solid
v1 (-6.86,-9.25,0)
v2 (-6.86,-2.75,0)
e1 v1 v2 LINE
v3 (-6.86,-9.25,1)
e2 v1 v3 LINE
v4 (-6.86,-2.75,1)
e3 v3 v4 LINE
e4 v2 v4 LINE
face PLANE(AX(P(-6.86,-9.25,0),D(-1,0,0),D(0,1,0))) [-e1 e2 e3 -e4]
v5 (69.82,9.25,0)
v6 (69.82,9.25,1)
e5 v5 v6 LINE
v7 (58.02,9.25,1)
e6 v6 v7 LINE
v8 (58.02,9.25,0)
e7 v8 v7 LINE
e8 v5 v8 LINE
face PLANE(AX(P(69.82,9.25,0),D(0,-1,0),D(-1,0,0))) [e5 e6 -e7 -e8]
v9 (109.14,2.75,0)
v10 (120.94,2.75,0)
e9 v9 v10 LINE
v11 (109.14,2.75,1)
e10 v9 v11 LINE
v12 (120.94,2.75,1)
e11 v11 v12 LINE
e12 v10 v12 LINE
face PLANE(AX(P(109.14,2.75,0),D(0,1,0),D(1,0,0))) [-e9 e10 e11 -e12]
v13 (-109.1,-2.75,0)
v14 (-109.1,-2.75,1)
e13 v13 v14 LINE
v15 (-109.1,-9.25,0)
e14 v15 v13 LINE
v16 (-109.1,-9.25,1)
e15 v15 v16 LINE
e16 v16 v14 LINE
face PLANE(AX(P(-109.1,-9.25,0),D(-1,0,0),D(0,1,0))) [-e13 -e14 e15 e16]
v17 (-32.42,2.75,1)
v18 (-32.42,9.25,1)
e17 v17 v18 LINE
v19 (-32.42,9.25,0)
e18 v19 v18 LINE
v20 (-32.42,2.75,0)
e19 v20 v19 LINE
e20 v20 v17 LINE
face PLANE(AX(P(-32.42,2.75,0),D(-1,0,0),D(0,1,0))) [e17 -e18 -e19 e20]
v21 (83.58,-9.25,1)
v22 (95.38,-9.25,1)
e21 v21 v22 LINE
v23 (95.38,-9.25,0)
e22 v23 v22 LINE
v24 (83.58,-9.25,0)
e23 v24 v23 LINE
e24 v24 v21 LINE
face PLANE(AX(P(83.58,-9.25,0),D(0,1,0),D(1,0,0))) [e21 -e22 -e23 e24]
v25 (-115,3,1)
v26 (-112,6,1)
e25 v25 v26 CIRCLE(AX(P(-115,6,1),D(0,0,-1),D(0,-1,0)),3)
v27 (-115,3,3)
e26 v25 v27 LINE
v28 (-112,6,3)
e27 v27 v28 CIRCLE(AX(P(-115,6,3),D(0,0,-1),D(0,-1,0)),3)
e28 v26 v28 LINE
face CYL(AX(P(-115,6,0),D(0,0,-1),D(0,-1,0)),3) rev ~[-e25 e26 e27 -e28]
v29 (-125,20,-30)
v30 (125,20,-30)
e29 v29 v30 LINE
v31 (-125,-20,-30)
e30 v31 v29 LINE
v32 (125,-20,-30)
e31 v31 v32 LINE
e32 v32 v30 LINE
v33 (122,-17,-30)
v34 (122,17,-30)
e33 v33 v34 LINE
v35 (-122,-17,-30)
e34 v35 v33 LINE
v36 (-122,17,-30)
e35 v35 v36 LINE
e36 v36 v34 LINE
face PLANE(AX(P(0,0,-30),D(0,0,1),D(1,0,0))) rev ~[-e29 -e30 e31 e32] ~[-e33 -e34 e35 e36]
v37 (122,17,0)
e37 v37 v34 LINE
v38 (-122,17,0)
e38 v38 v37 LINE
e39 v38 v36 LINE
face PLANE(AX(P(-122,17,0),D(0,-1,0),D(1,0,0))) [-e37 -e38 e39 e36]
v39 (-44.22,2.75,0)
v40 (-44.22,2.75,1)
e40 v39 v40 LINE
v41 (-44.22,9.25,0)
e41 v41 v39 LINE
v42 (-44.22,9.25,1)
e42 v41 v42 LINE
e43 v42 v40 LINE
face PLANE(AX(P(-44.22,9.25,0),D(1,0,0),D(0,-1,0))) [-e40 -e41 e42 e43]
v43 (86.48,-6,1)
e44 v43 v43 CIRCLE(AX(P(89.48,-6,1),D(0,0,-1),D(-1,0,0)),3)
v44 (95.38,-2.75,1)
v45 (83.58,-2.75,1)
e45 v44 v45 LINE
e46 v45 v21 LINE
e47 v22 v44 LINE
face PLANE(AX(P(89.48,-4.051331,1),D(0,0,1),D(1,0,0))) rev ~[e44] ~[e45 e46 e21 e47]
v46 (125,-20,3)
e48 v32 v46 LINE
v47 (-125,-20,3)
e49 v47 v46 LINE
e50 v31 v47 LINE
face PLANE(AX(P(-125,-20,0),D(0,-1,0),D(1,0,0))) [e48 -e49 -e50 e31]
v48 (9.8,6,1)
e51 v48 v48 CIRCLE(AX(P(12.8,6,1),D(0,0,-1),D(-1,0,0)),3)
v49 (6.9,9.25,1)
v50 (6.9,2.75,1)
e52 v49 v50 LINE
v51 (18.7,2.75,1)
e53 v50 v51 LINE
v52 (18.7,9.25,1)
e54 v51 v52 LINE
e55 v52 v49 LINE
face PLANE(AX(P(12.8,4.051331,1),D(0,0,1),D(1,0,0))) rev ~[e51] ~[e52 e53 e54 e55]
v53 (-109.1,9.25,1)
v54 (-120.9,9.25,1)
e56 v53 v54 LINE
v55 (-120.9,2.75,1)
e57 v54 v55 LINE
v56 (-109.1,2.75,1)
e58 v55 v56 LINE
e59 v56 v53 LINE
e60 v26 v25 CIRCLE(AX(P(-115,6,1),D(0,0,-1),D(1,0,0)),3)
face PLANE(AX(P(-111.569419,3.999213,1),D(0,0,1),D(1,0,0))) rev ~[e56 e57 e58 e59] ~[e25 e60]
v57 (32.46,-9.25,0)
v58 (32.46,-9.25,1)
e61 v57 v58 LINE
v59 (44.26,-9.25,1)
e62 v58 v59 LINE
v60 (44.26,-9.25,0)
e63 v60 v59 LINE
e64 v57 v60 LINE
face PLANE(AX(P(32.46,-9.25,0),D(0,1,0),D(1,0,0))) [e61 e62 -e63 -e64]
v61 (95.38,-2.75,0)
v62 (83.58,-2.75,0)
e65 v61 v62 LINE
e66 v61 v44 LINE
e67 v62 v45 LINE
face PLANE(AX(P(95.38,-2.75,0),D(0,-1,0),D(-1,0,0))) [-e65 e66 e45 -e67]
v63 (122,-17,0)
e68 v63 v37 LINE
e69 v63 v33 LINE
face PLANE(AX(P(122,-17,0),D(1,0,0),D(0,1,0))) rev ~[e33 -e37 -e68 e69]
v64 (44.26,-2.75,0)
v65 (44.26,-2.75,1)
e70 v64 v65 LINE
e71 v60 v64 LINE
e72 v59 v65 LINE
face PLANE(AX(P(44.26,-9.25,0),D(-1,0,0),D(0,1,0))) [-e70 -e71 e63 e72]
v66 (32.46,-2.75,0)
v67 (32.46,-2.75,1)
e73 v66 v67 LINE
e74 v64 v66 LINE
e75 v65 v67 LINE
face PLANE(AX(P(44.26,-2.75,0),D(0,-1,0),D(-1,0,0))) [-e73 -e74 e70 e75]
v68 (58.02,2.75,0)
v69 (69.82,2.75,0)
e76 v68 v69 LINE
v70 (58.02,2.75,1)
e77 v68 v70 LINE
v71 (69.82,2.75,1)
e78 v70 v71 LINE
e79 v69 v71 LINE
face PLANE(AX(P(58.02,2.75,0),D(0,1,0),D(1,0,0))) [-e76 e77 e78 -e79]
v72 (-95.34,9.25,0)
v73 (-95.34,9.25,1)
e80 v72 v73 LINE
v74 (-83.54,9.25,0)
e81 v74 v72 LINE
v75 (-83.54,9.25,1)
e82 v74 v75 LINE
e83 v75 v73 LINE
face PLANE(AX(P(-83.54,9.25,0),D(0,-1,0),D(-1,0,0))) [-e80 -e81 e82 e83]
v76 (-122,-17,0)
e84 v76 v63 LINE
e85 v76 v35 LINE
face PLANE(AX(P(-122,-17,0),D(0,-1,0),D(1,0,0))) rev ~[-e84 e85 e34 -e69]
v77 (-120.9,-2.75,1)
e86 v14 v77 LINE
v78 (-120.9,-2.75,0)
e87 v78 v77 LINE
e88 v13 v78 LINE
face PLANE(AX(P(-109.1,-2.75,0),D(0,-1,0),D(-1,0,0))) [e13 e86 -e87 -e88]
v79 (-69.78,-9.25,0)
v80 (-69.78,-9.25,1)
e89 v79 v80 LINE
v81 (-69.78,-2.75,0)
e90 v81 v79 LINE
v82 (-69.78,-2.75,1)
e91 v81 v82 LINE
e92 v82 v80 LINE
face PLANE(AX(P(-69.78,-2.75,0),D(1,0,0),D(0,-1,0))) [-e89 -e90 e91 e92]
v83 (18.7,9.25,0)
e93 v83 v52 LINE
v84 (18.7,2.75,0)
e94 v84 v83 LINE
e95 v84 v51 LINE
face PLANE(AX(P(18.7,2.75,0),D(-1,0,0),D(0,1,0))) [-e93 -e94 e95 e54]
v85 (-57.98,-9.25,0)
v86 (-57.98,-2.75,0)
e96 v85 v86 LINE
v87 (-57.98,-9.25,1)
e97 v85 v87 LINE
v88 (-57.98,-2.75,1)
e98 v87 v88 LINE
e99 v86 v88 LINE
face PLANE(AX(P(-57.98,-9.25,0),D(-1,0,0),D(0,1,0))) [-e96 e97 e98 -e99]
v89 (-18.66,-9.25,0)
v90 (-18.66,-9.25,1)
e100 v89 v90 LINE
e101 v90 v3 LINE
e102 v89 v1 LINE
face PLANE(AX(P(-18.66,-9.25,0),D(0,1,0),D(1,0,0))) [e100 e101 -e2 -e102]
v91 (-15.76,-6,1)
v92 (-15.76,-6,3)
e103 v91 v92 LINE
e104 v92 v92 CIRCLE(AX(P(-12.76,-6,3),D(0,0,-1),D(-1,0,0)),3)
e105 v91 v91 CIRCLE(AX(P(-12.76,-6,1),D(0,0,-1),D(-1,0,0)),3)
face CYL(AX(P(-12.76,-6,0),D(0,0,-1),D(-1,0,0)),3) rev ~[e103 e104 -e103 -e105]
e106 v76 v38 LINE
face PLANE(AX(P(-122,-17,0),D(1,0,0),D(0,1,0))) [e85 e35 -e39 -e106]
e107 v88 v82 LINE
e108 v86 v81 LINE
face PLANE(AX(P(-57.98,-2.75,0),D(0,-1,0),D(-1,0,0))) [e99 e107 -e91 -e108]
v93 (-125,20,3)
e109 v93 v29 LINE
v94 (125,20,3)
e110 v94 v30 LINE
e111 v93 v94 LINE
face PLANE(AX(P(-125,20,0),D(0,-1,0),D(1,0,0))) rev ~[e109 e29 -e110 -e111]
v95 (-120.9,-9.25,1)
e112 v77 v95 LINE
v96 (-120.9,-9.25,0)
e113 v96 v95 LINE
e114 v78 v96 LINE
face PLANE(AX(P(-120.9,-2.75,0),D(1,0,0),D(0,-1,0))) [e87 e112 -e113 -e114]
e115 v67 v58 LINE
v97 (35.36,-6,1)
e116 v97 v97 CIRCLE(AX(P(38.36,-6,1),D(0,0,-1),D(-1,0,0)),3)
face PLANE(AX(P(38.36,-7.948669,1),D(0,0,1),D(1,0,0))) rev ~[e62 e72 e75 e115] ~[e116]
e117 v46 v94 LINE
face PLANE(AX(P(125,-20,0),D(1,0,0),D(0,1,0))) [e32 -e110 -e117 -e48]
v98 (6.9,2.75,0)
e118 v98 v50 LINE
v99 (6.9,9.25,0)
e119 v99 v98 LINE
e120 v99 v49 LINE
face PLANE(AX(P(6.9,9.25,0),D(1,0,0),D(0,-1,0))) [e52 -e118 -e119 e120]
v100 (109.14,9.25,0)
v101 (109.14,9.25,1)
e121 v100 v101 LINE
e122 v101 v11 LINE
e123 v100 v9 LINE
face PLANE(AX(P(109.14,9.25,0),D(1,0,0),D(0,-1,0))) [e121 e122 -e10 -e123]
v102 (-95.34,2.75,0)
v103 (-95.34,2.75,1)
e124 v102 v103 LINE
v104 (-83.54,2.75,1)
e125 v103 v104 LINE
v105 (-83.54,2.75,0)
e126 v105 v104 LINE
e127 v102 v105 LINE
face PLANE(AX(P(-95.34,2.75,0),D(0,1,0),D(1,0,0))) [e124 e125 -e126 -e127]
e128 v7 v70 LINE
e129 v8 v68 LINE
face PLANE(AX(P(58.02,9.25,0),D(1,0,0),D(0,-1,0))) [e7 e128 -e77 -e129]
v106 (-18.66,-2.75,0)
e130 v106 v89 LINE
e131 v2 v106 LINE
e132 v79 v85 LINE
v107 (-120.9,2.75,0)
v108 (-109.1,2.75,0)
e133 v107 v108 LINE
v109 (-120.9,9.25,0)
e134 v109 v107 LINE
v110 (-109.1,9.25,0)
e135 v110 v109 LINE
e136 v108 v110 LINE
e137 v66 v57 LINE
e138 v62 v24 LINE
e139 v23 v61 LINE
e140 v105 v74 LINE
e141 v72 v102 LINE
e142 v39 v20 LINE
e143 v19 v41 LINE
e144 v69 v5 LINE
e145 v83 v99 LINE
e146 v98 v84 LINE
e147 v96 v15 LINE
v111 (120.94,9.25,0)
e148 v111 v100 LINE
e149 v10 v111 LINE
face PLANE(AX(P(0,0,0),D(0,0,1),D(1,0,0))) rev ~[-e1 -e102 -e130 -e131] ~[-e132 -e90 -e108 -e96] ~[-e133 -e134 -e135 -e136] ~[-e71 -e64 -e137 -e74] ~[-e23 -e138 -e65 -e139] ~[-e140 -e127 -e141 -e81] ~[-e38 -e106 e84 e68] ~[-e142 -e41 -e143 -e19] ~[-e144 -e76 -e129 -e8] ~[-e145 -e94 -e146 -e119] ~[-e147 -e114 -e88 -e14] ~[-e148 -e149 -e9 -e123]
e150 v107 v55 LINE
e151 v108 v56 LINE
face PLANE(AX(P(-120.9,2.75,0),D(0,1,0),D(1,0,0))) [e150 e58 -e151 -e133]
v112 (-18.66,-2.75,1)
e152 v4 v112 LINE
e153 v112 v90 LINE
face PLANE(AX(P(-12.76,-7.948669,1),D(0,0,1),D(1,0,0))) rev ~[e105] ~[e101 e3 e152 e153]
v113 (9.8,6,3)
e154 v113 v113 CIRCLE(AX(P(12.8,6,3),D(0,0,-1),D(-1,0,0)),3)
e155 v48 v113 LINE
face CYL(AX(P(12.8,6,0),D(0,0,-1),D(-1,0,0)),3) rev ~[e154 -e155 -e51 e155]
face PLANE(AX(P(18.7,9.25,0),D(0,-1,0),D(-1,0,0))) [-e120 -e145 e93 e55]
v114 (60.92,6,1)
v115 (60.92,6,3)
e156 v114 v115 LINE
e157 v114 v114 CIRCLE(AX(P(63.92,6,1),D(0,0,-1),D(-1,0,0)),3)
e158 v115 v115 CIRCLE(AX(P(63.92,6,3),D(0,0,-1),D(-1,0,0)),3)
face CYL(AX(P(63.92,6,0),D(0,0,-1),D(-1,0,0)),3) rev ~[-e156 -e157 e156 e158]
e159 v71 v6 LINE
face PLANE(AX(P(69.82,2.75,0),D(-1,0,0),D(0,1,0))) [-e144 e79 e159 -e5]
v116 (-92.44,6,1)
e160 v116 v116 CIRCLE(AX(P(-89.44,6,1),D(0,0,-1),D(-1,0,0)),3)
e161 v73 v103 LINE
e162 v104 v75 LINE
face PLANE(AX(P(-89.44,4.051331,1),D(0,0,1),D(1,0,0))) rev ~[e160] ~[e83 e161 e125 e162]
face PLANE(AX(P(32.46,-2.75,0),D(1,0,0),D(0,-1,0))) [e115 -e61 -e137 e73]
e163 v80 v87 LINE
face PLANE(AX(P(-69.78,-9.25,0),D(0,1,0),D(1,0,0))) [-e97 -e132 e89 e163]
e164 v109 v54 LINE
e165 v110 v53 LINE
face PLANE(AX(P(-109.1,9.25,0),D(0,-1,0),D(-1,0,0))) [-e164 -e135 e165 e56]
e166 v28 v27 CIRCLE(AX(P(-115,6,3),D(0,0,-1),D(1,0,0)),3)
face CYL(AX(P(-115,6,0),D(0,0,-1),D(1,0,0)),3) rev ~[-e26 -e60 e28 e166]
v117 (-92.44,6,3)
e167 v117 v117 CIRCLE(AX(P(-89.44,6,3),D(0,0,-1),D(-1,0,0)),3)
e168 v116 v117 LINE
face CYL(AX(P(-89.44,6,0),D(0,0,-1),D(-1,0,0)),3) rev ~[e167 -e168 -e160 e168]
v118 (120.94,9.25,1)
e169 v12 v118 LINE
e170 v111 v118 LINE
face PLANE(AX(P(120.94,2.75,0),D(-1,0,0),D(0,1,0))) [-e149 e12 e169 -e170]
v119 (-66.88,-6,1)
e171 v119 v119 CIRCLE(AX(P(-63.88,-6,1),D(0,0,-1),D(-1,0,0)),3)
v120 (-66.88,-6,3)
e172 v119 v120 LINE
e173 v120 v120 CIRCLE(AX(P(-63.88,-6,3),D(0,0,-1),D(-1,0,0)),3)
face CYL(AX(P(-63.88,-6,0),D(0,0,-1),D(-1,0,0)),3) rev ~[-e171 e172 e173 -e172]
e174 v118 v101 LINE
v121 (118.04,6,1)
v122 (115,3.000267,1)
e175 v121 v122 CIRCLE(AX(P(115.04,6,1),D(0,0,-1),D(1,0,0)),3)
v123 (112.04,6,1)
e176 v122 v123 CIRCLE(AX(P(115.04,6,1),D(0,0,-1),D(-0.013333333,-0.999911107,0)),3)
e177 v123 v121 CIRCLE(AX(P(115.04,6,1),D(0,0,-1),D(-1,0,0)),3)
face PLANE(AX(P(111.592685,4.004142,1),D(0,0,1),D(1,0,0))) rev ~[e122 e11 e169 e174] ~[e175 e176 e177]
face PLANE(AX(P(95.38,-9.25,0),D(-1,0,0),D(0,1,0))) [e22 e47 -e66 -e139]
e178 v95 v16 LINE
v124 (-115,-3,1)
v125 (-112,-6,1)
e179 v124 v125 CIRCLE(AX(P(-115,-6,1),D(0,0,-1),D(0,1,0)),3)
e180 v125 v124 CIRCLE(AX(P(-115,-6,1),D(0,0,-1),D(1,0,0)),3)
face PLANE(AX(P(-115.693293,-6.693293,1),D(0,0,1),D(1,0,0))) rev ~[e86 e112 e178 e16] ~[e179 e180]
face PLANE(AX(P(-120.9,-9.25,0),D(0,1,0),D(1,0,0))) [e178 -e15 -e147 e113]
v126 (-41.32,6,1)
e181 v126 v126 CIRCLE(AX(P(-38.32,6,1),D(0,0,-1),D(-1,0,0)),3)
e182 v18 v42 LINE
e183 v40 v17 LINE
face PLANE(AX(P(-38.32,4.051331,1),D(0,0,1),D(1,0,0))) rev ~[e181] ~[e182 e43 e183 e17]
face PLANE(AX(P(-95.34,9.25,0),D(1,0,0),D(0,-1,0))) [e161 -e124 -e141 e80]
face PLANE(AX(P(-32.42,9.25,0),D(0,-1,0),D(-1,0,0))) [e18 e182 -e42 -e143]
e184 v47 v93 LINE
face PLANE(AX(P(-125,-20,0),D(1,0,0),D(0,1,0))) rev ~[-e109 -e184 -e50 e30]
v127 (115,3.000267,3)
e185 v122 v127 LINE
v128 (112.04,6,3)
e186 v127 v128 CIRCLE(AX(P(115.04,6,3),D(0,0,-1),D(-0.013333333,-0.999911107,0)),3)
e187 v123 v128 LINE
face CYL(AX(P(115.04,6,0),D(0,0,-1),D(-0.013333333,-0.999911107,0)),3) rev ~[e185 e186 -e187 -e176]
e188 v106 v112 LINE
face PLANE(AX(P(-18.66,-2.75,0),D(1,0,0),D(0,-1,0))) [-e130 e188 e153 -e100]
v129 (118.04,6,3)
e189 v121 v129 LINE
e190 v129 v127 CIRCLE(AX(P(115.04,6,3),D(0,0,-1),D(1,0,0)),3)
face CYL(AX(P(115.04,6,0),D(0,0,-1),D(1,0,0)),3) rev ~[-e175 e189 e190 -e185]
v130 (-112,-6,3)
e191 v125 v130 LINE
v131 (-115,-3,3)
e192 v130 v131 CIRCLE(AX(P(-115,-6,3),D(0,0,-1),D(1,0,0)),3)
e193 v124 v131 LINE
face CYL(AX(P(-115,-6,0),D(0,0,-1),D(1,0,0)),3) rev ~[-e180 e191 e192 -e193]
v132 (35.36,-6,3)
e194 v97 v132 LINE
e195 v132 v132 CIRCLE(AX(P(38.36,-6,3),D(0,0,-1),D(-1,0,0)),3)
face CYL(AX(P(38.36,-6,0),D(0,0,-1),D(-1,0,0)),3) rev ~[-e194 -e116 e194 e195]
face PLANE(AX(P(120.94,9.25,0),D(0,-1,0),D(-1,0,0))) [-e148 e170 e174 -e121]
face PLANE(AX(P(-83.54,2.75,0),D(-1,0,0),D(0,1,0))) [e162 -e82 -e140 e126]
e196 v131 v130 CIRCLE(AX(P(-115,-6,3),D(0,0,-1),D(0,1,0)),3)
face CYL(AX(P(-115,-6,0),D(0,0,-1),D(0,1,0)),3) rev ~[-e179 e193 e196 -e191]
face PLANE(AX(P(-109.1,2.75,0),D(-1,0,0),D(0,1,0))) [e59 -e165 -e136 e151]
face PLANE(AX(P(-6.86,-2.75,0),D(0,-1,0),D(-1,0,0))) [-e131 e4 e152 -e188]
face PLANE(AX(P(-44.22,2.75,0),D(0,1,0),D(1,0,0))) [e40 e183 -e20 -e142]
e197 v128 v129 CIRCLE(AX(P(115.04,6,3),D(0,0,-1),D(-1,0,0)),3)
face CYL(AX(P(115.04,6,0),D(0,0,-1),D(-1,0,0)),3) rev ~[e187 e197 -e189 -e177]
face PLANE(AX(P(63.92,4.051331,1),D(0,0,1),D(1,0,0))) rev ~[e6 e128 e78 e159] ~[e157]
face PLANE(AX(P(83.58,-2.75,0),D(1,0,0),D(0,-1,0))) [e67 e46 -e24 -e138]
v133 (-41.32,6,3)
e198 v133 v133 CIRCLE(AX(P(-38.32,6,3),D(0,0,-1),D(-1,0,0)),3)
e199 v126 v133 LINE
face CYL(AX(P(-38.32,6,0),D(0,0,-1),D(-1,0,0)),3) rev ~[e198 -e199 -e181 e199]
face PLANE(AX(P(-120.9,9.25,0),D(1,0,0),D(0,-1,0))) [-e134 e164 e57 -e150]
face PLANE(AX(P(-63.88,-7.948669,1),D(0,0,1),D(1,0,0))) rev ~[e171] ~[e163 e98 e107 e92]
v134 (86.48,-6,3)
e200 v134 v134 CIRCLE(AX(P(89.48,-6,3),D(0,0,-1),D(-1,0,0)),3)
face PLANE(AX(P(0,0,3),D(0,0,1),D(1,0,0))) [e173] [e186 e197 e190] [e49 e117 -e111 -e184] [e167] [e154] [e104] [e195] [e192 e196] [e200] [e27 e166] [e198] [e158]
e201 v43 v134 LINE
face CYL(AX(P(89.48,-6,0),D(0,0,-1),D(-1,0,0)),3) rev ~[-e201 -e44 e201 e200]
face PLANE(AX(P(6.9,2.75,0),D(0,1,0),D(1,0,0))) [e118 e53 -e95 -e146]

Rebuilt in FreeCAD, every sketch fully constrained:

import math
import FreeCAD as App
import Part
import Sketcher

V = App.Vector
Q = App.Units.Quantity

doc = App.newDocument("Part")
body = doc.addObject("PartDesign::Body", "Body")

# Sketch on XY plane
sketch1 = body.newObject("Sketcher::SketchObject", "Sketch")
sketch1.AttachmentSupport = (doc.getObject("XY_Plane"), [""])
sketch1.MapMode = "FlatFace"
sketch1.addGeometry(Part.LineSegment(V(-125, 20, 0), V(-125, -20, 0)), False)
sketch1.addGeometry(Part.LineSegment(V(-125, -20, 0), V(125, -20, 0)), False)
sketch1.addGeometry(Part.LineSegment(V(125, -20, 0), V(125, 20, 0)), False)
sketch1.addGeometry(Part.LineSegment(V(125, 20, 0), V(-125, 20, 0)), False)
sketch1.addGeometry(Part.ArcOfCircle(Part.Circle(V(-115, 6, 0), V(0, 0, 1), 3), math.radians(0), math.radians(270)), False)
sketch1.addGeometry(Part.ArcOfCircle(Part.Circle(V(-115, 6, 0), V(0, 0, 1), 3), math.radians(-90), math.radians(0)), False)
sketch1.addGeometry(Part.ArcOfCircle(Part.Circle(V(-115, -6, 0), V(0, 0, 1), 3), math.radians(90), math.radians(360)), False)
sketch1.addGeometry(Part.ArcOfCircle(Part.Circle(V(-115, -6, 0), V(0, 0, 1), 3), math.radians(0), math.radians(90)), False)
sketch1.addGeometry(Part.Circle(V(-63.9, -6, 0), V(0, 0, 1), 3), False)
sketch1.addGeometry(Part.Circle(V(-12.8, -6, 0), V(0, 0, 1), 3), False)
sketch1.addGeometry(Part.Circle(V(38.4, -6, 0), V(0, 0, 1), 3), False)
sketch1.addGeometry(Part.Circle(V(89.5, -6, 0), V(0, 0, 1), 3), False)
sketch1.addGeometry(Part.ArcOfCircle(Part.Circle(V(115, 6, 0), V(0, 0, 1), 3), math.radians(0), math.radians(180)), False)
sketch1.addGeometry(Part.ArcOfCircle(Part.Circle(V(115, 6, 0), V(0, 0, 1), 3), math.radians(-91), math.radians(0)), False)
sketch1.addGeometry(Part.ArcOfCircle(Part.Circle(V(115, 6, 0), V(0, 0, 1), 3), math.radians(180), math.radians(269)), False)
sketch1.addGeometry(Part.Circle(V(63.9, 6, 0), V(0, 0, 1), 3), False)
sketch1.addGeometry(Part.Circle(V(12.8, 6, 0), V(0, 0, 1), 3), False)
sketch1.addGeometry(Part.Circle(V(-38.3, 6, 0), V(0, 0, 1), 3), False)
sketch1.addGeometry(Part.Circle(V(-89.4, 6, 0), V(0, 0, 1), 3), False)
sketch1.addConstraint(Sketcher.Constraint("Coincident", 0, 2, 1, 1))
sketch1.addConstraint(Sketcher.Constraint("Coincident", 1, 2, 2, 1))
sketch1.addConstraint(Sketcher.Constraint("Coincident", 2, 2, 3, 1))
sketch1.addConstraint(Sketcher.Constraint("Coincident", 3, 2, 0, 1))
sketch1.addConstraint(Sketcher.Constraint("Tangent", 4, 1, 5, 2))
sketch1.addConstraint(Sketcher.Constraint("Coincident", 5, 1, 4, 2))
sketch1.addConstraint(Sketcher.Constraint("Tangent", 6, 1, 7, 2))
sketch1.addConstraint(Sketcher.Constraint("Coincident", 7, 1, 6, 2))
sketch1.addConstraint(Sketcher.Constraint("Tangent", 12, 1, 13, 2))
sketch1.addConstraint(Sketcher.Constraint("Tangent", 13, 1, 14, 2))
sketch1.addConstraint(Sketcher.Constraint("Tangent", 14, 1, 12, 2))
sketch1.addConstraint(Sketcher.Constraint("Vertical", 0))
sketch1.addConstraint(Sketcher.Constraint("Horizontal", 1))
sketch1.addConstraint(Sketcher.Constraint("Vertical", 2))
sketch1.addConstraint(Sketcher.Constraint("Horizontal", 3))
sketch1.addConstraint(Sketcher.Constraint("Equal", 5, 6))
sketch1.addConstraint(Sketcher.Constraint("Equal", 7, 8))
sketch1.addConstraint(Sketcher.Constraint("Equal", 8, 9))
sketch1.addConstraint(Sketcher.Constraint("Equal", 9, 10))
sketch1.addConstraint(Sketcher.Constraint("Equal", 10, 11))
sketch1.addConstraint(Sketcher.Constraint("Equal", 11, 12))
sketch1.addConstraint(Sketcher.Constraint("Equal", 14, 15))
sketch1.addConstraint(Sketcher.Constraint("Equal", 15, 16))
sketch1.addConstraint(Sketcher.Constraint("Equal", 16, 17))
sketch1.addConstraint(Sketcher.Constraint("Equal", 17, 18))
sketch1.addConstraint(Sketcher.Constraint("Symmetric", 0, 2, 2, 2, -1, 1))
sketch1.addConstraint(Sketcher.Constraint("Symmetric", 4, 3, 6, 3, -1))
sketch1.addConstraint(Sketcher.Constraint("Horizontal", 7, 3, 8, 3))
sketch1.addConstraint(Sketcher.Constraint("Horizontal", 8, 3, 9, 3))
sketch1.addConstraint(Sketcher.Constraint("Horizontal", 9, 3, 10, 3))
sketch1.addConstraint(Sketcher.Constraint("Horizontal", 10, 3, 11, 3))
sketch1.addConstraint(Sketcher.Constraint("Horizontal", 5, 3, 12, 3))
sketch1.addConstraint(Sketcher.Constraint("Horizontal", 14, 3, 15, 3))
sketch1.addConstraint(Sketcher.Constraint("Horizontal", 15, 3, 16, 3))
sketch1.addConstraint(Sketcher.Constraint("Horizontal", 16, 3, 17, 3))
sketch1.addConstraint(Sketcher.Constraint("Horizontal", 17, 3, 18, 3))
sketch1.addConstraint(Sketcher.Constraint("Horizontal", 18, 3, 4, 1))
sketch1.addConstraint(Sketcher.Constraint("Horizontal", 11, 3, 7, 1))
sketch1.addConstraint(Sketcher.Constraint("Horizontal", 4, 1, 12, 1))
sketch1.addConstraint(Sketcher.Constraint("Horizontal", 12, 1, 14, 1))
sketch1.addConstraint(Sketcher.Constraint("Vertical", 7, 3, 5, 1))
sketch1.addConstraint(Sketcher.Constraint("Vertical", 5, 1, 6, 1))
sketch1.addConstraint(Sketcher.Constraint("Diameter", 8, Q("6 mm")))
sketch1.addConstraint(Sketcher.Constraint("DistanceX", 1, 1, 1, 2, Q("250 mm")))
sketch1.addConstraint(Sketcher.Constraint("DistanceY", 0, 2, 0, 1, Q("40 mm")))
sketch1.addConstraint(Sketcher.Constraint("DistanceX", 4, 3, -1, 1, Q("115 mm")))
sketch1.addConstraint(Sketcher.Constraint("DistanceY", -1, 1, 4, 3, Q("6 mm")))
sketch1.addConstraint(Sketcher.Constraint("DistanceX", -1, 1, 13, 1, Q("115 mm")))
sketch1.addConstraint(Sketcher.Constraint("DistanceX", -1, 1, 16, 3, Q("12.8 mm")))
sketch1.addConstraint(Sketcher.Constraint("DistanceX", 9, 3, 12, 3, Q("127.8 mm")))
sketch1.addConstraint(Sketcher.Constraint("DistanceX", 8, 3, -1, 1, Q("63.88 mm")))
sketch1.addConstraint(Sketcher.Constraint("DistanceX", 9, 3, -1, 1, Q("12.76 mm")))
sketch1.addConstraint(Sketcher.Constraint("DistanceX", -1, 1, 10, 3, Q("38.36 mm")))
sketch1.addConstraint(Sketcher.Constraint("DistanceX", -1, 1, 11, 3, Q("89.48 mm")))
sketch1.addConstraint(Sketcher.Constraint("DistanceX", -1, 1, 15, 3, Q("63.92 mm")))
sketch1.addConstraint(Sketcher.Constraint("DistanceX", 17, 3, -1, 1, Q("38.32 mm")))
sketch1.addConstraint(Sketcher.Constraint("DistanceX", 18, 3, -1, 1, Q("89.44 mm")))
pad1 = body.newObject("PartDesign::Pad", "Pad")
pad1.Profile = sketch1
pad1.Length = 3

# Sketch on XY plane
sketch2 = body.newObject("Sketcher::SketchObject", "Sketch001")
sketch2.AttachmentSupport = (doc.getObject("XY_Plane"), [""])
sketch2.MapMode = "FlatFace"
sketch2.addGeometry(Part.LineSegment(V(58, 2.8, 0), V(69.8, 2.8, 0)), False)
sketch2.addGeometry(Part.LineSegment(V(69.8, 2.8, 0), V(69.8, 9.2, 0)), False)
sketch2.addGeometry(Part.LineSegment(V(69.8, 9.2, 0), V(58, 9.2, 0)), False)
sketch2.addGeometry(Part.LineSegment(V(58, 9.2, 0), V(58, 2.8, 0)), False)
sketch2.addGeometry(Part.Circle(V(63.9, 6, 0), V(0, 0, 1), 3), False)
sketch2.addGeometry(Part.LineSegment(V(32.5, -9.2, 0), V(44.3, -9.2, 0)), False)
sketch2.addGeometry(Part.LineSegment(V(44.3, -9.2, 0), V(44.3, -2.8, 0)), False)
sketch2.addGeometry(Part.LineSegment(V(44.3, -2.8, 0), V(32.5, -2.8, 0)), False)
sketch2.addGeometry(Part.LineSegment(V(32.5, -2.8, 0), V(32.5, -9.2, 0)), False)
sketch2.addGeometry(Part.Circle(V(38.4, -6, 0), V(0, 0, 1), 3), False)
sketch2.addGeometry(Part.LineSegment(V(6.9, 2.8, 0), V(18.7, 2.8, 0)), False)
sketch2.addGeometry(Part.LineSegment(V(18.7, 2.8, 0), V(18.7, 9.2, 0)), False)
sketch2.addGeometry(Part.LineSegment(V(18.7, 9.2, 0), V(6.9, 9.2, 0)), False)
sketch2.addGeometry(Part.LineSegment(V(6.9, 9.2, 0), V(6.9, 2.8, 0)), False)
sketch2.addGeometry(Part.Circle(V(12.8, 6, 0), V(0, 0, 1), 3), False)
sketch2.addGeometry(Part.LineSegment(V(-18.7, -9.2, 0), V(-6.9, -9.2, 0)), False)
sketch2.addGeometry(Part.LineSegment(V(-6.9, -9.2, 0), V(-6.9, -2.8, 0)), False)
sketch2.addGeometry(Part.LineSegment(V(-6.9, -2.8, 0), V(-18.7, -2.8, 0)), False)
sketch2.addGeometry(Part.LineSegment(V(-18.7, -2.8, 0), V(-18.7, -9.2, 0)), False)
sketch2.addGeometry(Part.Circle(V(-12.8, -6, 0), V(0, 0, 1), 3), False)
sketch2.addGeometry(Part.LineSegment(V(83.6, -2.8, 0), V(83.6, -9.2, 0)), False)
sketch2.addGeometry(Part.LineSegment(V(83.6, -9.2, 0), V(95.4, -9.2, 0)), False)
sketch2.addGeometry(Part.LineSegment(V(95.4, -9.2, 0), V(95.4, -2.8, 0)), False)
sketch2.addGeometry(Part.LineSegment(V(95.4, -2.8, 0), V(83.6, -2.8, 0)), False)
sketch2.addGeometry(Part.Circle(V(89.5, -6, 0), V(0, 0, 1), 3), False)
sketch2.addGeometry(Part.LineSegment(V(109.1, 2.8, 0), V(120.9, 2.8, 0)), False)
sketch2.addGeometry(Part.LineSegment(V(120.9, 2.8, 0), V(120.9, 9.2, 0)), False)
sketch2.addGeometry(Part.LineSegment(V(120.9, 9.2, 0), V(109.1, 9.2, 0)), False)
sketch2.addGeometry(Part.LineSegment(V(109.1, 9.2, 0), V(109.1, 2.8, 0)), False)
sketch2.addGeometry(Part.ArcOfCircle(Part.Circle(V(115, 6, 0), V(0, 0, 1), 3), math.radians(180), math.radians(269)), False)
sketch2.addGeometry(Part.ArcOfCircle(Part.Circle(V(115, 6, 0), V(0, 0, 1), 3), math.radians(0), math.radians(180)), False)
sketch2.addGeometry(Part.ArcOfCircle(Part.Circle(V(115, 6, 0), V(0, 0, 1), 3), math.radians(-91), math.radians(0)), False)
sketch2.addGeometry(Part.LineSegment(V(-44.2, 2.8, 0), V(-32.4, 2.8, 0)), False)
sketch2.addGeometry(Part.LineSegment(V(-32.4, 2.8, 0), V(-32.4, 9.2, 0)), False)
sketch2.addGeometry(Part.LineSegment(V(-32.4, 9.2, 0), V(-44.2, 9.2, 0)), False)
sketch2.addGeometry(Part.LineSegment(V(-44.2, 9.2, 0), V(-44.2, 2.8, 0)), False)
sketch2.addGeometry(Part.Circle(V(-38.3, 6, 0), V(0, 0, 1), 3), False)
sketch2.addGeometry(Part.LineSegment(V(-69.8, -9.2, 0), V(-58, -9.2, 0)), False)
sketch2.addGeometry(Part.LineSegment(V(-58, -9.2, 0), V(-58, -2.8, 0)), False)
sketch2.addGeometry(Part.LineSegment(V(-58, -2.8, 0), V(-69.8, -2.8, 0)), False)
sketch2.addGeometry(Part.LineSegment(V(-69.8, -2.8, 0), V(-69.8, -9.2, 0)), False)
sketch2.addGeometry(Part.Circle(V(-63.9, -6, 0), V(0, 0, 1), 3), False)
sketch2.addGeometry(Part.LineSegment(V(-95.3, 2.8, 0), V(-83.5, 2.8, 0)), False)
sketch2.addGeometry(Part.LineSegment(V(-83.5, 2.8, 0), V(-83.5, 9.2, 0)), False)
sketch2.addGeometry(Part.LineSegment(V(-83.5, 9.2, 0), V(-95.3, 9.2, 0)), False)
sketch2.addGeometry(Part.LineSegment(V(-95.3, 9.2, 0), V(-95.3, 2.8, 0)), False)
sketch2.addGeometry(Part.Circle(V(-89.4, 6, 0), V(0, 0, 1), 3), False)
sketch2.addGeometry(Part.LineSegment(V(-109.1, 2.8, 0), V(-109.1, 9.2, 0)), False)
sketch2.addGeometry(Part.LineSegment(V(-109.1, 9.2, 0), V(-120.9, 9.2, 0)), False)
sketch2.addGeometry(Part.LineSegment(V(-120.9, 9.2, 0), V(-120.9, 2.8, 0)), False)
sketch2.addGeometry(Part.LineSegment(V(-120.9, 2.8, 0), V(-109.1, 2.8, 0)), False)
sketch2.addGeometry(Part.ArcOfCircle(Part.Circle(V(-115, 6, 0), V(0, 0, 1), 3), math.radians(-90), math.radians(0)), False)
sketch2.addGeometry(Part.ArcOfCircle(Part.Circle(V(-115, 6, 0), V(0, 0, 1), 3), math.radians(0), math.radians(270)), False)
sketch2.addGeometry(Part.LineSegment(V(-120.9, -2.8, 0), V(-120.9, -9.2, 0)), False)
sketch2.addGeometry(Part.LineSegment(V(-120.9, -9.2, 0), V(-109.1, -9.2, 0)), False)
sketch2.addGeometry(Part.LineSegment(V(-109.1, -9.2, 0), V(-109.1, -2.8, 0)), False)
sketch2.addGeometry(Part.LineSegment(V(-109.1, -2.8, 0), V(-120.9, -2.8, 0)), False)
sketch2.addGeometry(Part.ArcOfCircle(Part.Circle(V(-115, -6, 0), V(0, 0, 1), 3), math.radians(90), math.radians(360)), False)
sketch2.addGeometry(Part.ArcOfCircle(Part.Circle(V(-115, -6, 0), V(0, 0, 1), 3), math.radians(0), math.radians(90)), False)
sketch2.addConstraint(Sketcher.Constraint("Coincident", 0, 2, 1, 1))
sketch2.addConstraint(Sketcher.Constraint("Coincident", 1, 2, 2, 1))
sketch2.addConstraint(Sketcher.Constraint("Coincident", 2, 2, 3, 1))
sketch2.addConstraint(Sketcher.Constraint("Coincident", 3, 2, 0, 1))
sketch2.addConstraint(Sketcher.Constraint("Coincident", 5, 2, 6, 1))
sketch2.addConstraint(Sketcher.Constraint("Coincident", 6, 2, 7, 1))
sketch2.addConstraint(Sketcher.Constraint("Coincident", 7, 2, 8, 1))
sketch2.addConstraint(Sketcher.Constraint("Coincident", 8, 2, 5, 1))
sketch2.addConstraint(Sketcher.Constraint("Coincident", 10, 2, 11, 1))
sketch2.addConstraint(Sketcher.Constraint("Coincident", 11, 2, 12, 1))
sketch2.addConstraint(Sketcher.Constraint("Coincident", 12, 2, 13, 1))
sketch2.addConstraint(Sketcher.Constraint("Coincident", 13, 2, 10, 1))
sketch2.addConstraint(Sketcher.Constraint("Coincident", 15, 2, 16, 1))
sketch2.addConstraint(Sketcher.Constraint("Coincident", 16, 2, 17, 1))
sketch2.addConstraint(Sketcher.Constraint("Coincident", 17, 2, 18, 1))
sketch2.addConstraint(Sketcher.Constraint("Coincident", 18, 2, 15, 1))
sketch2.addConstraint(Sketcher.Constraint("Coincident", 20, 2, 21, 1))
sketch2.addConstraint(Sketcher.Constraint("Coincident", 21, 2, 22, 1))
sketch2.addConstraint(Sketcher.Constraint("Coincident", 22, 2, 23, 1))
sketch2.addConstraint(Sketcher.Constraint("Coincident", 23, 2, 20, 1))
sketch2.addConstraint(Sketcher.Constraint("Coincident", 25, 2, 26, 1))
sketch2.addConstraint(Sketcher.Constraint("Coincident", 26, 2, 27, 1))
sketch2.addConstraint(Sketcher.Constraint("Coincident", 27, 2, 28, 1))
sketch2.addConstraint(Sketcher.Constraint("Coincident", 28, 2, 25, 1))
sketch2.addConstraint(Sketcher.Constraint("Tangent", 29, 1, 30, 2))
sketch2.addConstraint(Sketcher.Constraint("Tangent", 30, 1, 31, 2))
sketch2.addConstraint(Sketcher.Constraint("Tangent", 31, 1, 29, 2))
sketch2.addConstraint(Sketcher.Constraint("Coincident", 32, 2, 33, 1))
sketch2.addConstraint(Sketcher.Constraint("Coincident", 33, 2, 34, 1))
sketch2.addConstraint(Sketcher.Constraint("Coincident", 34, 2, 35, 1))
sketch2.addConstraint(Sketcher.Constraint("Coincident", 35, 2, 32, 1))
sketch2.addConstraint(Sketcher.Constraint("Coincident", 37, 2, 38, 1))
sketch2.addConstraint(Sketcher.Constraint("Coincident", 38, 2, 39, 1))
sketch2.addConstraint(Sketcher.Constraint("Coincident", 39, 2, 40, 1))
sketch2.addConstraint(Sketcher.Constraint("Coincident", 40, 2, 37, 1))
sketch2.addConstraint(Sketcher.Constraint("Coincident", 42, 2, 43, 1))
sketch2.addConstraint(Sketcher.Constraint("Coincident", 43, 2, 44, 1))
sketch2.addConstraint(Sketcher.Constraint("Coincident", 44, 2, 45, 1))
sketch2.addConstraint(Sketcher.Constraint("Coincident", 45, 2, 42, 1))
sketch2.addConstraint(Sketcher.Constraint("Coincident", 47, 2, 48, 1))
sketch2.addConstraint(Sketcher.Constraint("Coincident", 48, 2, 49, 1))
sketch2.addConstraint(Sketcher.Constraint("Coincident", 49, 2, 50, 1))
sketch2.addConstraint(Sketcher.Constraint("Coincident", 50, 2, 47, 1))
sketch2.addConstraint(Sketcher.Constraint("Tangent", 51, 1, 52, 2))
sketch2.addConstraint(Sketcher.Constraint("Coincident", 52, 1, 51, 2))
sketch2.addConstraint(Sketcher.Constraint("Coincident", 53, 2, 54, 1))
sketch2.addConstraint(Sketcher.Constraint("Coincident", 54, 2, 55, 1))
sketch2.addConstraint(Sketcher.Constraint("Coincident", 55, 2, 56, 1))
sketch2.addConstraint(Sketcher.Constraint("Coincident", 56, 2, 53, 1))
sketch2.addConstraint(Sketcher.Constraint("Tangent", 57, 1, 58, 2))
sketch2.addConstraint(Sketcher.Constraint("Coincident", 58, 1, 57, 2))
sketch2.addConstraint(Sketcher.Constraint("Horizontal", 0))
sketch2.addConstraint(Sketcher.Constraint("Vertical", 1))
sketch2.addConstraint(Sketcher.Constraint("Horizontal", 2))
sketch2.addConstraint(Sketcher.Constraint("Vertical", 3))
sketch2.addConstraint(Sketcher.Constraint("Horizontal", 5))
sketch2.addConstraint(Sketcher.Constraint("Vertical", 6))
sketch2.addConstraint(Sketcher.Constraint("Horizontal", 7))
sketch2.addConstraint(Sketcher.Constraint("Vertical", 8))
sketch2.addConstraint(Sketcher.Constraint("Horizontal", 10))
sketch2.addConstraint(Sketcher.Constraint("Vertical", 11))
sketch2.addConstraint(Sketcher.Constraint("Horizontal", 12))
sketch2.addConstraint(Sketcher.Constraint("Vertical", 13))
sketch2.addConstraint(Sketcher.Constraint("Horizontal", 15))
sketch2.addConstraint(Sketcher.Constraint("Vertical", 16))
sketch2.addConstraint(Sketcher.Constraint("Horizontal", 17))
sketch2.addConstraint(Sketcher.Constraint("Vertical", 18))
sketch2.addConstraint(Sketcher.Constraint("Vertical", 20))
sketch2.addConstraint(Sketcher.Constraint("Horizontal", 21))
sketch2.addConstraint(Sketcher.Constraint("Vertical", 22))
sketch2.addConstraint(Sketcher.Constraint("Horizontal", 23))
sketch2.addConstraint(Sketcher.Constraint("Horizontal", 25))
sketch2.addConstraint(Sketcher.Constraint("Vertical", 26))
sketch2.addConstraint(Sketcher.Constraint("Horizontal", 27))
sketch2.addConstraint(Sketcher.Constraint("Vertical", 28))
sketch2.addConstraint(Sketcher.Constraint("Horizontal", 32))
sketch2.addConstraint(Sketcher.Constraint("Vertical", 33))
sketch2.addConstraint(Sketcher.Constraint("Horizontal", 34))
sketch2.addConstraint(Sketcher.Constraint("Vertical", 35))
sketch2.addConstraint(Sketcher.Constraint("Horizontal", 37))
sketch2.addConstraint(Sketcher.Constraint("Vertical", 38))
sketch2.addConstraint(Sketcher.Constraint("Horizontal", 39))
sketch2.addConstraint(Sketcher.Constraint("Vertical", 40))
sketch2.addConstraint(Sketcher.Constraint("Horizontal", 42))
sketch2.addConstraint(Sketcher.Constraint("Vertical", 43))
sketch2.addConstraint(Sketcher.Constraint("Horizontal", 44))
sketch2.addConstraint(Sketcher.Constraint("Vertical", 45))
sketch2.addConstraint(Sketcher.Constraint("Vertical", 47))
sketch2.addConstraint(Sketcher.Constraint("Horizontal", 48))
sketch2.addConstraint(Sketcher.Constraint("Vertical", 49))
sketch2.addConstraint(Sketcher.Constraint("Horizontal", 50))
sketch2.addConstraint(Sketcher.Constraint("Vertical", 53))
sketch2.addConstraint(Sketcher.Constraint("Horizontal", 54))
sketch2.addConstraint(Sketcher.Constraint("Vertical", 55))
sketch2.addConstraint(Sketcher.Constraint("Horizontal", 56))
sketch2.addConstraint(Sketcher.Constraint("Equal", 4, 9))
sketch2.addConstraint(Sketcher.Constraint("Equal", 9, 14))
sketch2.addConstraint(Sketcher.Constraint("Equal", 14, 19))
sketch2.addConstraint(Sketcher.Constraint("Equal", 19, 24))
sketch2.addConstraint(Sketcher.Constraint("Equal", 24, 29))
sketch2.addConstraint(Sketcher.Constraint("Equal", 31, 36))
sketch2.addConstraint(Sketcher.Constraint("Equal", 36, 41))
sketch2.addConstraint(Sketcher.Constraint("Equal", 41, 46))
sketch2.addConstraint(Sketcher.Constraint("Equal", 46, 51))
sketch2.addConstraint(Sketcher.Constraint("Equal", 52, 57))
sketch2.addConstraint(Sketcher.Constraint("Symmetric", 51, 3, 57, 3, -1))
sketch2.addConstraint(Sketcher.Constraint("Symmetric", 48, 2, 53, 2, -1))
sketch2.addConstraint(Sketcher.Constraint("Symmetric", 50, 2, 55, 2, -1))
sketch2.addConstraint(Sketcher.Constraint("Horizontal", 4, 3, 14, 3))
sketch2.addConstraint(Sketcher.Constraint("Horizontal", 9, 3, 19, 3))
sketch2.addConstraint(Sketcher.Constraint("Horizontal", 19, 3, 24, 3))
sketch2.addConstraint(Sketcher.Constraint("Horizontal", 14, 3, 29, 3))
sketch2.addConstraint(Sketcher.Constraint("Horizontal", 31, 3, 36, 3))
sketch2.addConstraint(Sketcher.Constraint("Horizontal", 24, 3, 41, 3))
sketch2.addConstraint(Sketcher.Constraint("Horizontal", 36, 3, 46, 3))
sketch2.addConstraint(Sketcher.Constraint("Horizontal", 46, 3, 51, 3))
sketch2.addConstraint(Sketcher.Constraint("Horizontal", 41, 3, 57, 3))
sketch2.addConstraint(Sketcher.Constraint("Horizontal", 3, 2, 10, 2))
sketch2.addConstraint(Sketcher.Constraint("Horizontal", 2, 2, 11, 2))
sketch2.addConstraint(Sketcher.Constraint("Horizontal", 8, 2, 15, 2))
sketch2.addConstraint(Sketcher.Constraint("Horizontal", 7, 2, 16, 2))
sketch2.addConstraint(Sketcher.Constraint("Horizontal", 18, 2, 20, 2))
sketch2.addConstraint(Sketcher.Constraint("Horizontal", 17, 2, 22, 2))
sketch2.addConstraint(Sketcher.Constraint("Horizontal", 13, 2, 25, 2))
sketch2.addConstraint(Sketcher.Constraint("Horizontal", 12, 2, 26, 2))
sketch2.addConstraint(Sketcher.Constraint("Horizontal", 52, 3, 29, 1))
sketch2.addConstraint(Sketcher.Constraint("Horizontal", 29, 1, 30, 1))
sketch2.addConstraint(Sketcher.Constraint("Horizontal", 28, 2, 32, 2))
sketch2.addConstraint(Sketcher.Constraint("Horizontal", 27, 2, 33, 2))
sketch2.addConstraint(Sketcher.Constraint("Horizontal", 21, 2, 37, 2))
sketch2.addConstraint(Sketcher.Constraint("Horizontal", 23, 2, 38, 2))
sketch2.addConstraint(Sketcher.Constraint("Horizontal", 35, 2, 42, 2))
sketch2.addConstraint(Sketcher.Constraint("Horizontal", 34, 2, 43, 2))
sketch2.addConstraint(Sketcher.Constraint("Horizontal", 44, 2, 47, 2))
sketch2.addConstraint(Sketcher.Constraint("Horizontal", 45, 2, 49, 2))
sketch2.addConstraint(Sketcher.Constraint("Horizontal", 30, 1, 52, 1))
sketch2.addConstraint(Sketcher.Constraint("Horizontal", 40, 2, 53, 2))
sketch2.addConstraint(Sketcher.Constraint("Horizontal", 39, 2, 55, 2))
sketch2.addConstraint(Sketcher.Constraint("Horizontal", 57, 3, 58, 1))
sketch2.addConstraint(Sketcher.Constraint("Vertical", 58, 3, 51, 1))
sketch2.addConstraint(Sketcher.Constraint("Vertical", 51, 1, 57, 1))
sketch2.addConstraint(Sketcher.Constraint("Equal", 2, 5))
sketch2.addConstraint(Sketcher.Constraint("Equal", 7, 10))
sketch2.addConstraint(Sketcher.Constraint("Equal", 12, 15))
sketch2.addConstraint(Sketcher.Constraint("Equal", 17, 21))
sketch2.addConstraint(Sketcher.Constraint("Equal", 23, 25))
sketch2.addConstraint(Sketcher.Constraint("Equal", 27, 32))
sketch2.addConstraint(Sketcher.Constraint("Equal", 34, 37))
sketch2.addConstraint(Sketcher.Constraint("Equal", 39, 42))
sketch2.addConstraint(Sketcher.Constraint("Equal", 44, 48))
sketch2.addConstraint(Sketcher.Constraint("Diameter", 4, Q("6 mm")))
sketch2.addConstraint(Sketcher.Constraint("DistanceX", 0, 1, 0, 2, Q("11.8 mm")))
sketch2.addConstraint(Sketcher.Constraint("DistanceY", 1, 1, 1, 2, Q("6.5 mm")))
sketch2.addConstraint(Sketcher.Constraint("DistanceY", -1, 1, 4, 3, Q("6 mm")))
sketch2.addConstraint(Sketcher.Constraint("DistanceX", 51, 3, -1, 1, Q("115 mm")))
sketch2.addConstraint(Sketcher.Constraint("DistanceX", -1, 1, 31, 1, Q("115 mm")))
sketch2.addConstraint(Sketcher.Constraint("DistanceX", -1, 1, 14, 3, Q("12.8 mm")))
sketch2.addConstraint(Sketcher.Constraint("DistanceX", -1, 1, 10, 2, Q("18.7 mm")))
sketch2.addConstraint(Sketcher.Constraint("DistanceX", 47, 2, -1, 1, Q("109.1 mm")))
sketch2.addConstraint(Sketcher.Constraint("DistanceX", -1, 1, 4, 3, Q("63.92 mm")))
sketch2.addConstraint(Sketcher.Constraint("DistanceX", -1, 1, 9, 3, Q("38.36 mm")))
sketch2.addConstraint(Sketcher.Constraint("DistanceX", 19, 3, -1, 1, Q("12.76 mm")))
sketch2.addConstraint(Sketcher.Constraint("DistanceX", -1, 1, 24, 3, Q("89.48 mm")))
sketch2.addConstraint(Sketcher.Constraint("DistanceX", -1, 1, 29, 3, Q("115.04 mm")))
sketch2.addConstraint(Sketcher.Constraint("DistanceX", 36, 3, -1, 1, Q("38.32 mm")))
sketch2.addConstraint(Sketcher.Constraint("DistanceX", 41, 3, -1, 1, Q("63.88 mm")))
sketch2.addConstraint(Sketcher.Constraint("DistanceX", 46, 3, -1, 1, Q("89.44 mm")))
sketch2.addConstraint(Sketcher.Constraint("DistanceX", -1, 1, 0, 2, Q("69.82 mm")))
sketch2.addConstraint(Sketcher.Constraint("DistanceY", -1, 1, 0, 2, Q("2.75 mm")))
sketch2.addConstraint(Sketcher.Constraint("DistanceX", -1, 1, 5, 2, Q("44.26 mm")))
sketch2.addConstraint(Sketcher.Constraint("DistanceX", 15, 2, -1, 1, Q("6.86 mm")))
sketch2.addConstraint(Sketcher.Constraint("DistanceX", -1, 1, 20, 2, Q("83.58 mm")))
sketch2.addConstraint(Sketcher.Constraint("DistanceX", -1, 1, 25, 2, Q("120.94 mm")))
sketch2.addConstraint(Sketcher.Constraint("DistanceX", 32, 2, -1, 1, Q("32.42 mm")))
sketch2.addConstraint(Sketcher.Constraint("DistanceX", 37, 2, -1, 1, Q("57.98 mm")))
sketch2.addConstraint(Sketcher.Constraint("DistanceX", 42, 2, -1, 1, Q("83.54 mm")))
pocket1 = body.newObject("PartDesign::Pocket", "Pocket")
pocket1.Profile = sketch2
pocket1.Length = 1
pocket1.Reversed = True

# Sketch on XY plane
sketch3 = body.newObject("Sketcher::SketchObject", "Sketch002")
sketch3.AttachmentSupport = (doc.getObject("XY_Plane"), [""])
sketch3.MapMode = "FlatFace"
sketch3.addGeometry(Part.LineSegment(V(-125, 20, 0), V(-125, -20, 0)), False)
sketch3.addGeometry(Part.LineSegment(V(-125, -20, 0), V(125, -20, 0)), False)
sketch3.addGeometry(Part.LineSegment(V(125, -20, 0), V(125, 20, 0)), False)
sketch3.addGeometry(Part.LineSegment(V(125, 20, 0), V(-125, 20, 0)), False)
sketch3.addGeometry(Part.LineSegment(V(122, -17, 0), V(-122, -17, 0)), False)
sketch3.addGeometry(Part.LineSegment(V(-122, -17, 0), V(-122, 17, 0)), False)
sketch3.addGeometry(Part.LineSegment(V(-122, 17, 0), V(122, 17, 0)), False)
sketch3.addGeometry(Part.LineSegment(V(122, 17, 0), V(122, -17, 0)), False)
sketch3.addConstraint(Sketcher.Constraint("Coincident", 0, 2, 1, 1))
sketch3.addConstraint(Sketcher.Constraint("Coincident", 1, 2, 2, 1))
sketch3.addConstraint(Sketcher.Constraint("Coincident", 2, 2, 3, 1))
sketch3.addConstraint(Sketcher.Constraint("Coincident", 3, 2, 0, 1))
sketch3.addConstraint(Sketcher.Constraint("Coincident", 4, 2, 5, 1))
sketch3.addConstraint(Sketcher.Constraint("Coincident", 5, 2, 6, 1))
sketch3.addConstraint(Sketcher.Constraint("Coincident", 6, 2, 7, 1))
sketch3.addConstraint(Sketcher.Constraint("Coincident", 7, 2, 4, 1))
sketch3.addConstraint(Sketcher.Constraint("Vertical", 0))
sketch3.addConstraint(Sketcher.Constraint("Horizontal", 1))
sketch3.addConstraint(Sketcher.Constraint("Vertical", 2))
sketch3.addConstraint(Sketcher.Constraint("Horizontal", 3))
sketch3.addConstraint(Sketcher.Constraint("Horizontal", 4))
sketch3.addConstraint(Sketcher.Constraint("Vertical", 5))
sketch3.addConstraint(Sketcher.Constraint("Horizontal", 6))
sketch3.addConstraint(Sketcher.Constraint("Vertical", 7))
sketch3.addConstraint(Sketcher.Constraint("Symmetric", 0, 2, 2, 2, -1, 1))
sketch3.addConstraint(Sketcher.Constraint("Symmetric", 4, 2, 6, 2, -1, 1))
sketch3.addConstraint(Sketcher.Constraint("DistanceX", 1, 1, 1, 2, Q("250 mm")))
sketch3.addConstraint(Sketcher.Constraint("DistanceX", 4, 2, 4, 1, Q("244 mm")))
sketch3.addConstraint(Sketcher.Constraint("DistanceY", 0, 2, 0, 1, Q("40 mm")))
sketch3.addConstraint(Sketcher.Constraint("DistanceY", 5, 1, 5, 2, Q("34 mm")))
pad2 = body.newObject("PartDesign::Pad", "Pad001")
pad2.Profile = sketch3
pad2.Length = 30
pad2.Reversed = True

doc.recompute()
